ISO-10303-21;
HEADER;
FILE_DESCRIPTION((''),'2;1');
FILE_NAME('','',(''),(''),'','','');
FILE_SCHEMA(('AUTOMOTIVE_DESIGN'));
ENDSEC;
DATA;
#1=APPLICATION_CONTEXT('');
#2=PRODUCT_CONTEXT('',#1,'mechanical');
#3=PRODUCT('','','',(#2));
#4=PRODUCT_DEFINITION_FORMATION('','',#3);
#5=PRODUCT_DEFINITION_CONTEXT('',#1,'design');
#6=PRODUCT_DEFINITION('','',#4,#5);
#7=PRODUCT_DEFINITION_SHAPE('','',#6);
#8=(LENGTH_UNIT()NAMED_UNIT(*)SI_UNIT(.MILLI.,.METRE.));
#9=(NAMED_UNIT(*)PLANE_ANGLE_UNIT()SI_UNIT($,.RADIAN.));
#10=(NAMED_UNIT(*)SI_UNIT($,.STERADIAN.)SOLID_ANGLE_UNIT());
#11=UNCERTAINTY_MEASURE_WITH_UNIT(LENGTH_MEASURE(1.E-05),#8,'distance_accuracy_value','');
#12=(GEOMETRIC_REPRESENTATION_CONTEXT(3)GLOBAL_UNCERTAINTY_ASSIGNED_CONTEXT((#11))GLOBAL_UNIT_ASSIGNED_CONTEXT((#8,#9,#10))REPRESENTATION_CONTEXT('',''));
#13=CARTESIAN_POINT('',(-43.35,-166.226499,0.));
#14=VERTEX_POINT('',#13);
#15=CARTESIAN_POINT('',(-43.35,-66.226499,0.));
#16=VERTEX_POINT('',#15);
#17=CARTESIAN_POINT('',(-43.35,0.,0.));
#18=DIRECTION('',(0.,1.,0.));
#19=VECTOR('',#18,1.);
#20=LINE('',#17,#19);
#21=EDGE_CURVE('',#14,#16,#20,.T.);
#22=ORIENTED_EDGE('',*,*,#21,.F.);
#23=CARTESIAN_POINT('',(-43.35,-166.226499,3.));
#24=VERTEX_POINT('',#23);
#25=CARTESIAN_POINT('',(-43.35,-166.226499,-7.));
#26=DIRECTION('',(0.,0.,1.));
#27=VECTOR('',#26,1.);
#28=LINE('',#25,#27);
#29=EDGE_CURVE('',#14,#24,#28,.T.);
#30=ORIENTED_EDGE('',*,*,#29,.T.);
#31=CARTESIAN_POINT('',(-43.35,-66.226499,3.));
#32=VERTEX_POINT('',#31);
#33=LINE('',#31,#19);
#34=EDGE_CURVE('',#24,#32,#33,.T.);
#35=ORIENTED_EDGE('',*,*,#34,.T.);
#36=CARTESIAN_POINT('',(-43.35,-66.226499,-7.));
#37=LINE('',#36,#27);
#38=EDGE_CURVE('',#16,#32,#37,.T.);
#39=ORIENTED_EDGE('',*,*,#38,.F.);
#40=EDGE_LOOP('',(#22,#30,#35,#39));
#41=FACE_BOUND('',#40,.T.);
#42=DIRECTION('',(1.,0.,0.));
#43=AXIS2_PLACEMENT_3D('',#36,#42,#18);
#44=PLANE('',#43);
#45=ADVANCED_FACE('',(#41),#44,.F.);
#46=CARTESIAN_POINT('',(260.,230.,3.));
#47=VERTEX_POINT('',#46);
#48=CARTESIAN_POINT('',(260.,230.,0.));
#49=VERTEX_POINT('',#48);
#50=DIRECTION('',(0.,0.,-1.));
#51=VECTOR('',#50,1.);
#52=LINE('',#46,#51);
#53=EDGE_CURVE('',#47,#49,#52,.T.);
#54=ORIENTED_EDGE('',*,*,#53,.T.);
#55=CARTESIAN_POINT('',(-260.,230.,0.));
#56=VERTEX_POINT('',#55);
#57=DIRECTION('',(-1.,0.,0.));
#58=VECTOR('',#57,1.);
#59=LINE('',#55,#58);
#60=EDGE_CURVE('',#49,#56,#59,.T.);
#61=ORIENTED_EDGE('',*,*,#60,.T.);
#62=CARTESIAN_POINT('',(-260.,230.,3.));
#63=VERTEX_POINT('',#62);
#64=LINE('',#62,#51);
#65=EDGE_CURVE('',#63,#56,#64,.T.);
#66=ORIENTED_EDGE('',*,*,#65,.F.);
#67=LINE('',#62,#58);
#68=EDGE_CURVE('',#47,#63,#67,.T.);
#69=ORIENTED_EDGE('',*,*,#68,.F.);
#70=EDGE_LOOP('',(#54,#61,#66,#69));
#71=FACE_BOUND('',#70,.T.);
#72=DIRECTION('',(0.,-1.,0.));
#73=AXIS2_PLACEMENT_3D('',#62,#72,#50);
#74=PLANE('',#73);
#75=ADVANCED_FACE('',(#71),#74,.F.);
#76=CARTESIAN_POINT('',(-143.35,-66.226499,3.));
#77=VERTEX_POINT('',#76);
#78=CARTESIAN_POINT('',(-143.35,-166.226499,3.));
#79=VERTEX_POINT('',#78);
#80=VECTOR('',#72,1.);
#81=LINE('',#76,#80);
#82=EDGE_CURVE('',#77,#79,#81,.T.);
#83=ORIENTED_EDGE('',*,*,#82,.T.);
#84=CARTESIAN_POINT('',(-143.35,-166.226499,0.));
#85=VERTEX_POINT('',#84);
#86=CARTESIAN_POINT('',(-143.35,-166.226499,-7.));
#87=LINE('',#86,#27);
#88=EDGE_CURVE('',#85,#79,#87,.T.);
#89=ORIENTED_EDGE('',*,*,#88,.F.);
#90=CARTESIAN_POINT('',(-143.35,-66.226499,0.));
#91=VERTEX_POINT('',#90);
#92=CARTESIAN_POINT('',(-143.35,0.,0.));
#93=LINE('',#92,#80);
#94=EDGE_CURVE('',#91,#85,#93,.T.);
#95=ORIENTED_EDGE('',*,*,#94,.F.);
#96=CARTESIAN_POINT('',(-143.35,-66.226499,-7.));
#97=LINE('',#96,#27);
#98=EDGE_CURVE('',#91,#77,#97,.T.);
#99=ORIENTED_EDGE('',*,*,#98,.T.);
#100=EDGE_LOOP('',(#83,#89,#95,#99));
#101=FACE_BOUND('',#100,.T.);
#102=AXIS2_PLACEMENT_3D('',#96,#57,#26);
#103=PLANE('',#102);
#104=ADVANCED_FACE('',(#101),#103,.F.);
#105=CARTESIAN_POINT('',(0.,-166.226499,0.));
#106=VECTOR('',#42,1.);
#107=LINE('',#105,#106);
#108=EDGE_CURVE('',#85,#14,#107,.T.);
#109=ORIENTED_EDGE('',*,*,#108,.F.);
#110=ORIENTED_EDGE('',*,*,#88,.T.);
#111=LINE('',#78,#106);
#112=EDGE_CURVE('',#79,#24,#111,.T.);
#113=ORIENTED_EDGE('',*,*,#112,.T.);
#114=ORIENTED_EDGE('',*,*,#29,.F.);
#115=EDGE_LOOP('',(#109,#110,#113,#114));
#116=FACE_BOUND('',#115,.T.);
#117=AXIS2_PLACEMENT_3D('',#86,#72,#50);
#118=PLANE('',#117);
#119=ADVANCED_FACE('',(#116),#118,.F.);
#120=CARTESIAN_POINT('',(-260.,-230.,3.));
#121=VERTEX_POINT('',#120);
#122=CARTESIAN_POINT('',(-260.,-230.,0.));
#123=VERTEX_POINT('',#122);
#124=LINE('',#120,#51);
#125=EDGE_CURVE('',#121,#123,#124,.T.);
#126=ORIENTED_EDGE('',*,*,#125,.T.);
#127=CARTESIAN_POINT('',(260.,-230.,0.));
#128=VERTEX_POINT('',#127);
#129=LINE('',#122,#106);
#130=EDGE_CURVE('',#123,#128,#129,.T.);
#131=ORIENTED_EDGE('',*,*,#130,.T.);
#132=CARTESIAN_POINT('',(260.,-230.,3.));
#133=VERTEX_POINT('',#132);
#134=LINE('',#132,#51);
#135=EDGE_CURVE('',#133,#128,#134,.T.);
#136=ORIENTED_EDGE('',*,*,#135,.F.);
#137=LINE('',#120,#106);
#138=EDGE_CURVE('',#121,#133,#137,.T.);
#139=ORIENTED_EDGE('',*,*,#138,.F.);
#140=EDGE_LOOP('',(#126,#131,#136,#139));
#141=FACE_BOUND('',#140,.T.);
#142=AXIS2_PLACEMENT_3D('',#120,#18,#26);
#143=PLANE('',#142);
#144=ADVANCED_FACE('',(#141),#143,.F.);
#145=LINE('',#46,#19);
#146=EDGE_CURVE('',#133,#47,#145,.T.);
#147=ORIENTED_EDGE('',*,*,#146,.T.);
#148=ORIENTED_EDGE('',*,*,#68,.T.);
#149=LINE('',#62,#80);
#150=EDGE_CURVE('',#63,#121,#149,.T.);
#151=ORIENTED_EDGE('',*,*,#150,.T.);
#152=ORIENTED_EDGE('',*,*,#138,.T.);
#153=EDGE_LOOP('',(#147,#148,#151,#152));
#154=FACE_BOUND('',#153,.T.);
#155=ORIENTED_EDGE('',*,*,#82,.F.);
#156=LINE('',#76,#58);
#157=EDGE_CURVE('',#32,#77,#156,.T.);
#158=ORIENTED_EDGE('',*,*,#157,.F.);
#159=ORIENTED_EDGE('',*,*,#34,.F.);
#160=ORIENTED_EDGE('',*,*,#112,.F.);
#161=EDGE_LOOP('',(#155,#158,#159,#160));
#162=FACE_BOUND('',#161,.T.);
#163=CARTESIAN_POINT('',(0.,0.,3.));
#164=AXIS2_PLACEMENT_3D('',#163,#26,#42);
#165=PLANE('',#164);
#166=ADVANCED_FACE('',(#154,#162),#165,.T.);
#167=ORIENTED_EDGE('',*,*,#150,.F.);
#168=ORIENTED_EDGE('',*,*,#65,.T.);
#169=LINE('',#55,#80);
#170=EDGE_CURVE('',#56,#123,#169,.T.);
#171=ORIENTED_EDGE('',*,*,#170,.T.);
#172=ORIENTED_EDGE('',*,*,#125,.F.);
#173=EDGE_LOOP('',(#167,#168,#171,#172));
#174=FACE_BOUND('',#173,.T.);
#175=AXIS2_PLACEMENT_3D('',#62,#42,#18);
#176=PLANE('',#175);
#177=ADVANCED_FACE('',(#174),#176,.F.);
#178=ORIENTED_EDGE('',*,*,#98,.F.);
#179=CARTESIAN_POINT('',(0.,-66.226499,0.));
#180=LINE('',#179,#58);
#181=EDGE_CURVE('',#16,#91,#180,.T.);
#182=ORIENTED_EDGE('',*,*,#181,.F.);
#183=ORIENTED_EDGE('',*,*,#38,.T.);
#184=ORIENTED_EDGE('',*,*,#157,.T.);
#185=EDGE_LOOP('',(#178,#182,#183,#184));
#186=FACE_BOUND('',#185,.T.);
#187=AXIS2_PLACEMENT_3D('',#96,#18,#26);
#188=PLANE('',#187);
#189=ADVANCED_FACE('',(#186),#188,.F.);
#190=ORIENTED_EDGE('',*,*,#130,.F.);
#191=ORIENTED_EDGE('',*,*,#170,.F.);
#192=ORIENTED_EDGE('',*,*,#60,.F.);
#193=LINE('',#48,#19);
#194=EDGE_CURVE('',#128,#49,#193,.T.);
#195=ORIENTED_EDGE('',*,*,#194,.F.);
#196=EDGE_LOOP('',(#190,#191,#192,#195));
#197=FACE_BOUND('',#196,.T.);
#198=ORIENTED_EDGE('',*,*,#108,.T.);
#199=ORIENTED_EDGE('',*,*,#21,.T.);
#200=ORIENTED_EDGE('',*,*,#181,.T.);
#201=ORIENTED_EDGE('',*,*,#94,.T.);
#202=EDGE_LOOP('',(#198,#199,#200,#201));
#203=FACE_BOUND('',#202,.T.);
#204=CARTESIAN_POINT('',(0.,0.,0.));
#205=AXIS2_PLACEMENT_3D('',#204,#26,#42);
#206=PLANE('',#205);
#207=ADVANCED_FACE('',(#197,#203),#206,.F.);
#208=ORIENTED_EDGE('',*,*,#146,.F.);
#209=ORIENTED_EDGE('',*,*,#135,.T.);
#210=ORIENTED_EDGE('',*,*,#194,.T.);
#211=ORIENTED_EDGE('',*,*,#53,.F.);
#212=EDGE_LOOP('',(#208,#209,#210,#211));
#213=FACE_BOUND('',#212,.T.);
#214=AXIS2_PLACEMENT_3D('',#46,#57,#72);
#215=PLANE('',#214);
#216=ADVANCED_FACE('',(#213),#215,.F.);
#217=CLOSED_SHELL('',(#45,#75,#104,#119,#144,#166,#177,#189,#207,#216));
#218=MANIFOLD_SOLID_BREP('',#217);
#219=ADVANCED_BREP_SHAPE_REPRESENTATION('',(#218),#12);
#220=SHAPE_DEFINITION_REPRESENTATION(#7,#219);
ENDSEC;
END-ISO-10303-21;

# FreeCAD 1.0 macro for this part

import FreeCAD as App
import Part
import Sketcher
from FreeCAD import Vector

doc = App.newDocument("Part")
body = doc.addObject("PartDesign::Body", "Body")

sketch1 = body.newObject("Sketcher::SketchObject", "Sketch")
sketch1.AttachmentSupport = (doc.getObject("XY_Plane"), [""])
sketch1.MapMode = "FlatFace"
sketch1.addGeometry(Part.LineSegment(Vector(-260, 230, 0), Vector(-260, -230, 0)), False)
sketch1.addGeometry(Part.LineSegment(Vector(-260, -230, 0), Vector(260, -230, 0)), False)
sketch1.addGeometry(Part.LineSegment(Vector(260, -230, 0), Vector(260, 230, 0)), False)
sketch1.addGeometry(Part.LineSegment(Vector(260, 230, 0), Vector(-260, 230, 0)), False)
sketch1.addConstraint(Sketcher.Constraint("Coincident", 0, 2, 1, 1))
sketch1.addConstraint(Sketcher.Constraint("Coincident", 1, 2, 2, 1))
sketch1.addConstraint(Sketcher.Constraint("Coincident", 2, 2, 3, 1))
sketch1.addConstraint(Sketcher.Constraint("Coincident", 3, 2, 0, 1))
sketch1.addConstraint(Sketcher.Constraint("Vertical", 0))
sketch1.addConstraint(Sketcher.Constraint("Horizontal", 1))
sketch1.addConstraint(Sketcher.Constraint("Vertical", 2))
sketch1.addConstraint(Sketcher.Constraint("Horizontal", 3))
sketch1.addConstraint(Sketcher.Constraint("Symmetric", 0, 2, 2, 2, -1, 1))
sketch1.addConstraint(Sketcher.Constraint("DistanceX", 1, 1, 1, 2, 520.0))
sketch1.addConstraint(Sketcher.Constraint("DistanceY", 0, 2, 0, 1, 460.0))
pad1 = body.newObject("PartDesign::Pad", "Pad")
pad1.Profile = sketch1
pad1.Length = 3

sketch2 = body.newObject("Sketcher::SketchObject", "Sketch001")
sketch2.AttachmentSupport = (doc.getObject("XY_Plane"), [""])
sketch2.MapMode = "FlatFace"
sketch2.AttachmentOffset = App.Placement(Vector(0, 0, 3), App.Rotation())
sketch2.addGeometry(Part.LineSegment(Vector(-143, -66, 0), Vector(-143, -166, 0)), False)
sketch2.addGeometry(Part.LineSegment(Vector(-143, -166, 0), Vector(-43, -166, 0)), False)
sketch2.addGeometry(Part.LineSegment(Vector(-43, -166, 0), Vector(-43, -66, 0)), False)
sketch2.addGeometry(Part.LineSegment(Vector(-43, -66, 0), Vector(-143, -66, 0)), False)
sketch2.addConstraint(Sketcher.Constraint("Coincident", 0, 2, 1, 1))
sketch2.addConstraint(Sketcher.Constraint("Coincident", 1, 2, 2, 1))
sketch2.addConstraint(Sketcher.Constraint("Coincident", 2, 2, 3, 1))
sketch2.addConstraint(Sketcher.Constraint("Coincident", 3, 2, 0, 1))
sketch2.addConstraint(Sketcher.Constraint("Vertical", 0))
sketch2.addConstraint(Sketcher.Constraint("Horizontal", 1))
sketch2.addConstraint(Sketcher.Constraint("Vertical", 2))
sketch2.addConstraint(Sketcher.Constraint("Horizontal", 3))
sketch2.addConstraint(Sketcher.Constraint("Equal", 3, 0))
sketch2.addConstraint(Sketcher.Constraint("DistanceX", 1, 1, 1, 2, 100.0))
sketch2.addConstraint(Sketcher.Constraint("DistanceX", 0, 2, -1, 1, 143.35))
sketch2.addConstraint(Sketcher.Constraint("DistanceY", 0, 2, -1, 1, 166.226499))
pocket1 = body.newObject("PartDesign::Pocket", "Pocket")
pocket1.Profile = sketch2
pocket1.Length = 10

doc.recompute()
